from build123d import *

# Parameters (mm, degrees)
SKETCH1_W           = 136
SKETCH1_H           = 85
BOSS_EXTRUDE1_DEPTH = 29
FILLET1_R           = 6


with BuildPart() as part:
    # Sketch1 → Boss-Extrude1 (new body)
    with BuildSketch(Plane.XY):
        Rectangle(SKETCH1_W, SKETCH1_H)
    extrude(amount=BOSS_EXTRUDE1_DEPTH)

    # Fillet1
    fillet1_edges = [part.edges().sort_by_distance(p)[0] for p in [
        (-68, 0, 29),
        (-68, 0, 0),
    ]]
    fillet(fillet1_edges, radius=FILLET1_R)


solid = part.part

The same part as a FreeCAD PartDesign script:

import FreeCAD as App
import Part
import Sketcher


def edges_at(feature, points):
    """Names of the edges that pass closest to the given points."""
    edges = feature.Shape.Edges
    near = lambda p: min(range(len(edges)), key=lambda i: edges[i].distToShape(Part.Vertex(*p))[0])
    return sorted({f"Edge{near(p) + 1}" for p in points})


def add_polygon(sketch, points):
    """Adds a closed chain of lines whose ends are joined by coincident constraints."""
    first, n = sketch.GeometryCount, len(points)
    for a, b in zip(points, points[1:] + points[:1]):
        sketch.addGeometry(Part.LineSegment(App.Vector(*a, 0), App.Vector(*b, 0)), False)
    for i in range(n):
        sketch.addConstraint(Sketcher.Constraint("Coincident", first + i, 2, first + (i + 1) % n, 1))

doc = App.newDocument("Part")
params = doc.addObject("Spreadsheet::Sheet", "Params")
for row, (alias, value) in enumerate([
    ("sketch1_width", "136 mm"),
    ("sketch1_height", "85 mm"),
    ("pad1_length", "29 mm"),
    ("fillet_radius", "6 mm"),
], start=1):
    params.set(f"A{row}", alias)
    params.set(f"B{row}", "=" + value)
    params.setAlias(f"B{row}", alias)

body = doc.addObject("PartDesign::Body", "Body")

# Sketch on XY plane
sketch1 = body.newObject("Sketcher::SketchObject", "Sketch")
sketch1.AttachmentSupport = (doc.getObject("XY_Plane"), [""])
sketch1.MapMode = "FlatFace"
add_polygon(sketch1, [(-68, 42), (-68, -42), (68, -42), (68, 42)])  # lines 0-3
sketch1.addConstraint([
    Sketcher.Constraint("Vertical", 0),
    Sketcher.Constraint("Horizontal", 1),
    Sketcher.Constraint("Vertical", 2),
    Sketcher.Constraint("Horizontal", 3),
    Sketcher.Constraint("Symmetric", 0, 2, 2, 2, -1, 1),
    Sketcher.Constraint("DistanceX", 1, 1, 1, 2, 136.0),
    Sketcher.Constraint("DistanceY", 0, 2, 0, 1, 85.0),
])
sketch1.setExpression("Constraints[9]", "Params.sketch1_width")
sketch1.setExpression("Constraints[10]", "Params.sketch1_height")
pad1 = body.newObject("PartDesign::Pad", "Pad")
pad1.Profile = sketch1
pad1.setExpression("Length", "Params.pad1_length")
doc.recompute()

fillet = body.newObject("PartDesign::Fillet", "Fillet")
fillet.Base = (pad1, edges_at(pad1, [(-68, 0, 29), (-68, 0, 0)]))
fillet.setExpression("Radius", "Params.fillet_radius")

doc.recompute()
